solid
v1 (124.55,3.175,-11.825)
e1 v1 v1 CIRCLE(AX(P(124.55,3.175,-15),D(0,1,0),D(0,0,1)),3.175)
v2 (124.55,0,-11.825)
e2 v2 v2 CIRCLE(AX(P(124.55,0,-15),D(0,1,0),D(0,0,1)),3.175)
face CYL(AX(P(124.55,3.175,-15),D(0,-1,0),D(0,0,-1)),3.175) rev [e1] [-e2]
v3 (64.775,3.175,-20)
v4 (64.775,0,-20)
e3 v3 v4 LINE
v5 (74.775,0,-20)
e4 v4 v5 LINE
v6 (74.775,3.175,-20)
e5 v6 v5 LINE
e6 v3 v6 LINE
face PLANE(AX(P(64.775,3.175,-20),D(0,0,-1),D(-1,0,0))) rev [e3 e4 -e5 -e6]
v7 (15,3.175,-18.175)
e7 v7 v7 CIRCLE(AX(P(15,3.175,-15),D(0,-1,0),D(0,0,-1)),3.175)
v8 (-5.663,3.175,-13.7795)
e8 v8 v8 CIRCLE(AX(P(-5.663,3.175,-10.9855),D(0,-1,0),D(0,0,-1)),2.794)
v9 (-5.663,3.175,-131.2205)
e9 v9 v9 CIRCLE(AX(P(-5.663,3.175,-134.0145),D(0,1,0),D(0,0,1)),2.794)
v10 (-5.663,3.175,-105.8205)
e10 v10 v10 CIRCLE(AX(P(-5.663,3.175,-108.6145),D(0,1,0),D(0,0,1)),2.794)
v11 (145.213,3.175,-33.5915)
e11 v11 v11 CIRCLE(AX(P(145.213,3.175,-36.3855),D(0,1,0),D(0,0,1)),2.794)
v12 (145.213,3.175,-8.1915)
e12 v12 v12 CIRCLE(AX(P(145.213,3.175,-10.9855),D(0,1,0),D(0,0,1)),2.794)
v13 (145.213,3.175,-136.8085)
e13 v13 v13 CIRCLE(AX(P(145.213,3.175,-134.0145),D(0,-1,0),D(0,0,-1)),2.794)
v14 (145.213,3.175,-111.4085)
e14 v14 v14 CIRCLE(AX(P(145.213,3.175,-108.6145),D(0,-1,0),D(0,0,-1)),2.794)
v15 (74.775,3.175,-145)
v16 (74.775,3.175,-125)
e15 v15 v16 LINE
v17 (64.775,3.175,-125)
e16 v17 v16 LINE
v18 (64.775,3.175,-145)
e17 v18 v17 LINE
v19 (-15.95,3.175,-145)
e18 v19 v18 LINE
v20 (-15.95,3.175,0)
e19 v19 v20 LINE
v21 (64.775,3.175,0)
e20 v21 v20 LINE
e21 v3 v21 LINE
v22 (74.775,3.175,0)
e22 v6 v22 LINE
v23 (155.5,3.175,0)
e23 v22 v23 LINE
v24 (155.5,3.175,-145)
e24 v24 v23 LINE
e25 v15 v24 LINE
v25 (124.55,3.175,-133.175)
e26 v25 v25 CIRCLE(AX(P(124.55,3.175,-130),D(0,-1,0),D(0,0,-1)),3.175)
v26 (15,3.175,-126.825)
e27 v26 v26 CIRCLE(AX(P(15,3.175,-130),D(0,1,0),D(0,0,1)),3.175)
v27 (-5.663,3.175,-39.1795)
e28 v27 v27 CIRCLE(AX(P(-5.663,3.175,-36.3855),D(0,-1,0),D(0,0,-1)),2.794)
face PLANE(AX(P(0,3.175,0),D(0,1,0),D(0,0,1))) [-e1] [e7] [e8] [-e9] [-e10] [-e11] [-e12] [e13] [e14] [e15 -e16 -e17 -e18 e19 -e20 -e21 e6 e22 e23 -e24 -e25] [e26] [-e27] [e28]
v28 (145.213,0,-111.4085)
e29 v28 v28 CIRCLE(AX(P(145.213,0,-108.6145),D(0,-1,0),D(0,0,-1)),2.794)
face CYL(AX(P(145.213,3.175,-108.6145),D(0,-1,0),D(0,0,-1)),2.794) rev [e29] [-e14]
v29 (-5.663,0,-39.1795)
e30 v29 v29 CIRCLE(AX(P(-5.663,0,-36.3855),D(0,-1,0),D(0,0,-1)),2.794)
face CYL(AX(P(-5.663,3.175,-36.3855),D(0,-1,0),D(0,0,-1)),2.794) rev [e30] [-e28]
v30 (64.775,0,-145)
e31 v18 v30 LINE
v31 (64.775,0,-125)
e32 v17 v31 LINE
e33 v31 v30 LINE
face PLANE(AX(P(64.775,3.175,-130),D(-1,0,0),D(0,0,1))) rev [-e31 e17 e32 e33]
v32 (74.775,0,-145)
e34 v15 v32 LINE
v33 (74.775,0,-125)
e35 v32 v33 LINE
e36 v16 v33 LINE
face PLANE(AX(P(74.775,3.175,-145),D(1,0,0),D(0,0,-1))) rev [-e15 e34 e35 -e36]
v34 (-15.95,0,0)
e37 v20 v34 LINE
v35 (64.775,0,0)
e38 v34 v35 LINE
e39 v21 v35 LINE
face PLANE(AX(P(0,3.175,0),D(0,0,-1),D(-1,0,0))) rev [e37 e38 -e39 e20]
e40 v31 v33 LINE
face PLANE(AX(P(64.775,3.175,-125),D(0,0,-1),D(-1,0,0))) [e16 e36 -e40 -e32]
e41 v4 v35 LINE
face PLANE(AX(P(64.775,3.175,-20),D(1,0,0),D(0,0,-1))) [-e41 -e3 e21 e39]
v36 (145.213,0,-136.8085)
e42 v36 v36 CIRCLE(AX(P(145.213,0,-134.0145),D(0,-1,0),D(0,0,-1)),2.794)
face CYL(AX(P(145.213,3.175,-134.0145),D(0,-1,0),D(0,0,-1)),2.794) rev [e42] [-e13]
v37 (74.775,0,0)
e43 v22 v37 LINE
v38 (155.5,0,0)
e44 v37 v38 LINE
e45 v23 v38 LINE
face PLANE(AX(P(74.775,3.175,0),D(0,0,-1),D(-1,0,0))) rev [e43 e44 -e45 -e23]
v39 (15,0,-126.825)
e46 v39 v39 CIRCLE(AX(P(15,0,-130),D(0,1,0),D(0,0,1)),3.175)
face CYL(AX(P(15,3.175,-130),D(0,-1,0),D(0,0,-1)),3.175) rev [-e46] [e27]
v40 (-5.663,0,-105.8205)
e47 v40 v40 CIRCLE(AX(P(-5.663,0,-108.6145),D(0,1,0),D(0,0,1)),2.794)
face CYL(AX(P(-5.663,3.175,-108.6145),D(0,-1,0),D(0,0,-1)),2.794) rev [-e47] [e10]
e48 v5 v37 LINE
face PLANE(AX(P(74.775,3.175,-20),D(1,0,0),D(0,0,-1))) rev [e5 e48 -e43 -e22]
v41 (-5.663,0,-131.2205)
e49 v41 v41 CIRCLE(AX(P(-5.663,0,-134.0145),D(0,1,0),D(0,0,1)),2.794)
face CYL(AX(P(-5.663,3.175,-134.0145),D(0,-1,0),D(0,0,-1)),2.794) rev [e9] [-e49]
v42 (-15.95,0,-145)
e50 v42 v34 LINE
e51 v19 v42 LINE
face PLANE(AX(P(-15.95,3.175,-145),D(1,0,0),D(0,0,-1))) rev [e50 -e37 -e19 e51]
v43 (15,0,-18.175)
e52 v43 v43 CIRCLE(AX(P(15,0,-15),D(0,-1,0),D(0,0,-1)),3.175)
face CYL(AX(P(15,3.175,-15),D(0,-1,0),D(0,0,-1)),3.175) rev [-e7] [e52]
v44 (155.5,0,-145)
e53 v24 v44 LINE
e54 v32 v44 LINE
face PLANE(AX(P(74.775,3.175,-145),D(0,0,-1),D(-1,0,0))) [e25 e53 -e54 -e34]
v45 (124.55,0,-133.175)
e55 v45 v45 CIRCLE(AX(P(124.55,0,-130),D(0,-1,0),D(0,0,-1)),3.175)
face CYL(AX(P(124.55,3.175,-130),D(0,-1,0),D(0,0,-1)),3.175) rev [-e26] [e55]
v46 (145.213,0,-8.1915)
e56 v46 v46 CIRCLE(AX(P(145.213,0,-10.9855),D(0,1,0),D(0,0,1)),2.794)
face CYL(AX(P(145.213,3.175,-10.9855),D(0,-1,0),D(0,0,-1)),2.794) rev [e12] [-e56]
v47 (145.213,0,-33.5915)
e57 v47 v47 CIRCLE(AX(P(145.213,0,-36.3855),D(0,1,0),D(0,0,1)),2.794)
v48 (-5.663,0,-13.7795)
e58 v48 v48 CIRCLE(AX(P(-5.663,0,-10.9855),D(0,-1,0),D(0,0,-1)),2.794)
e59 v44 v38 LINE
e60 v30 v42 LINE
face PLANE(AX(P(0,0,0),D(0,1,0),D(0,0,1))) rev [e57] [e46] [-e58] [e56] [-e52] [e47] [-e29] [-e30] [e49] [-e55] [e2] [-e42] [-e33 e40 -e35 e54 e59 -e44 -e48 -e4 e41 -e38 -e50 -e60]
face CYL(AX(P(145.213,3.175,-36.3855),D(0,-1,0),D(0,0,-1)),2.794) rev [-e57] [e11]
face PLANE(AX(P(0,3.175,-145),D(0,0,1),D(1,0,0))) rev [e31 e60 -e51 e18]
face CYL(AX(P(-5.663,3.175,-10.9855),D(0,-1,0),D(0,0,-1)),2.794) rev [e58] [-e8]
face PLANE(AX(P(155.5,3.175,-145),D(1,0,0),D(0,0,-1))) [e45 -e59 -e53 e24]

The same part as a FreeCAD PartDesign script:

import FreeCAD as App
import Part
import Sketcher
from FreeCAD import Vector
Q = App.Units.Quantity


def add_polygon(sketch, points):
    """Adds a closed chain of lines whose ends are joined by coincident constraints."""
    first, n = sketch.GeometryCount, len(points)
    for a, b in zip(points, points[1:] + points[:1]):
        sketch.addGeometry(Part.LineSegment(App.Vector(*a, 0), App.Vector(*b, 0)), False)
    for i in range(n):
        sketch.addConstraint(Sketcher.Constraint("Coincident", first + i, 2, first + (i + 1) % n, 1))

doc = App.newDocument("Part")
params = doc.addObject("Spreadsheet::Sheet", "Params")
for row, (alias, value) in enumerate([
    ("sketch1_diameter", "6.35 mm"),
    ("sketch1_width", "10 mm"),
    ("sketch1_height", "20 mm"),
    ("sketch1_height2", "145 mm"),
    ("pad1_length", "3.175 mm"),
], start=1):
    params.set(f"A{row}", alias)
    params.set(f"B{row}", "=" + value)
    params.setAlias(f"B{row}", alias)

body = doc.addObject("PartDesign::Body", "Body")

sketch1 = body.newObject("Sketcher::SketchObject", "Sketch")
sketch1.AttachmentSupport = (doc.getObject("XZ_Plane"), [""])
sketch1.MapMode = "FlatFace"
add_polygon(sketch1, [(64.8, 0), (64.8, -20), (74.8, -20), (74.8, 0), (155.5, 0), (155.5, -145), (74.8, -145), (74.8, -125), (64.8, -125), (64.8, -145), (-15.9, -145), (-15.9, 0)])
sketch1.addGeometry(Part.Circle(Vector(-5.7, -11, 0), Vector(0, 0, 1), 2.8), False)
sketch1.addGeometry(Part.Circle(Vector(15, -15, 0), Vector(0, 0, 1), 3.2), False)
sketch1.addGeometry(Part.Circle(Vector(-5.7, -36.4, 0), Vector(0, 0, 1), 2.8), False)
sketch1.addGeometry(Part.Circle(Vector(124.5, -15, 0), Vector(0, 0, 1), 3.2), False)
sketch1.addGeometry(Part.Circle(Vector(145.2, -11, 0), Vector(0, 0, 1), 2.8), False)
sketch1.addGeometry(Part.Circle(Vector(145.2, -36.4, 0), Vector(0, 0, 1), 2.8), False)
sketch1.addGeometry(Part.Circle(Vector(-5.7, -108.6, 0), Vector(0, 0, 1), 2.8), False)
sketch1.addGeometry(Part.Circle(Vector(-5.7, -134, 0), Vector(0, 0, 1), 2.8), False)
sketch1.addGeometry(Part.Circle(Vector(15, -130, 0), Vector(0, 0, 1), 3.2), False)
sketch1.addGeometry(Part.Circle(Vector(145.2, -108.6, 0), Vector(0, 0, 1), 2.8), False)
sketch1.addGeometry(Part.Circle(Vector(124.5, -130, 0), Vector(0, 0, 1), 3.2), False)
sketch1.addGeometry(Part.Circle(Vector(145.2, -134, 0), Vector(0, 0, 1), 2.8), False)
sketch1.addConstraint([
    Sketcher.Constraint("Vertical", 0),
    Sketcher.Constraint("Horizontal", 1),
    Sketcher.Constraint("Vertical", 2),
    Sketcher.Constraint("Horizontal", 3),
    Sketcher.Constraint("Vertical", 4),
    Sketcher.Constraint("Horizontal", 5),
    Sketcher.Constraint("Vertical", 6),
    Sketcher.Constraint("Horizontal", 7),
    Sketcher.Constraint("Vertical", 8),
    Sketcher.Constraint("Horizontal", 9),
    Sketcher.Constraint("Vertical", 10),
    Sketcher.Constraint("Horizontal", 11),
    Sketcher.Constraint("Equal", 12, 14),
    Sketcher.Constraint("Equal", 13, 15),
    Sketcher.Constraint("Equal", 14, 16),
    Sketcher.Constraint("Equal", 16, 17),
    Sketcher.Constraint("Equal", 17, 18),
    Sketcher.Constraint("Equal", 18, 19),
    Sketcher.Constraint("Equal", 15, 20),
    Sketcher.Constraint("Equal", 19, 21),
    Sketcher.Constraint("Equal", 20, 22),
    Sketcher.Constraint("Equal", 21, 23),
    Sketcher.Constraint("PointOnObject", 2, 2, -1),
    Sketcher.Constraint("PointOnObject", 10, 2, -1),
    Sketcher.Constraint("Horizontal", 13, 3, 15, 3),
    Sketcher.Constraint("Horizontal", 12, 3, 16, 3),
    Sketcher.Constraint("Horizontal", 14, 3, 17, 3),
    Sketcher.Constraint("Horizontal", 18, 3, 21, 3),
    Sketcher.Constraint("Horizontal", 20, 3, 22, 3),
    Sketcher.Constraint("Horizontal", 19, 3, 23, 3),
    Sketcher.Constraint("Horizontal", 5, 2, 8, 2),
    Sketcher.Constraint("Vertical", 12, 3, 14, 3),
    Sketcher.Constraint("Vertical", 16, 3, 17, 3),
    Sketcher.Constraint("Vertical", 14, 3, 18, 3),
    Sketcher.Constraint("Vertical", 18, 3, 19, 3),
    Sketcher.Constraint("Vertical", 13, 3, 20, 3),
    Sketcher.Constraint("Vertical", 17, 3, 21, 3),
    Sketcher.Constraint("Vertical", 15, 3, 22, 3),
    Sketcher.Constraint("Vertical", 21, 3, 23, 3),
    Sketcher.Constraint("Vertical", 2, 2, 5, 2),
    Sketcher.Constraint("Vertical", 0, 2, 7, 2),
    Sketcher.Constraint("Equal", 5, 9),
    Sketcher.Constraint("Equal", 2, 6),
    Sketcher.Constraint("Diameter", 13, Q("6.35 mm")),
    Sketcher.Constraint("DistanceX", 1, 1, 1, 2, Q("10 mm")),
    Sketcher.Constraint("DistanceY", 0, 2, 0, 1, Q("20 mm")),
    Sketcher.Constraint("DistanceY", 4, 2, 4, 1, Q("145 mm")),
    Sketcher.Constraint("Diameter", 12, Q("5.588 mm")),
    Sketcher.Constraint("DistanceX", -1, 1, 13, 3, Q("15 mm")),
    Sketcher.Constraint("DistanceY", 13, 3, -1, 1, Q("15 mm")),
    Sketcher.Constraint("DistanceY", 20, 3, -1, 1, Q("130 mm")),
    Sketcher.Constraint("DistanceX", -1, 1, 3, 2, Q("155.5 mm")),
    Sketcher.Constraint("DistanceY", 14, 3, 12, 3, Q("25.4 mm")),
    Sketcher.Constraint("DistanceY", 19, 3, 18, 3, Q("25.4 mm")),
    Sketcher.Constraint("DistanceX", 3, 1, 3, 2, Q("80.725 mm")),
    Sketcher.Constraint("DistanceX", -1, 1, 15, 3, Q("124.55 mm")),
    Sketcher.Constraint("DistanceX", 12, 3, -1, 1, Q("5.663 mm")),
    Sketcher.Constraint("DistanceX", -1, 1, 16, 3, Q("145.213 mm")),
    Sketcher.Constraint("DistanceY", 18, 3, 14, 3, Q("72.229 mm")),
    Sketcher.Constraint("DistanceY", 12, 3, -1, 1, Q("10.9855 mm")),
])
sketch1.setExpression("Constraints[55]", "Params.sketch1_diameter")
sketch1.setExpression("Constraints[56]", "Params.sketch1_width")
sketch1.setExpression("Constraints[57]", "Params.sketch1_height")
sketch1.setExpression("Constraints[58]", "Params.sketch1_height2")
pad1 = body.newObject("PartDesign::Pad", "Pad")
pad1.Profile = sketch1
pad1.setExpression("Length", "Params.pad1_length")
pad1.Reversed = True

doc.recompute()
